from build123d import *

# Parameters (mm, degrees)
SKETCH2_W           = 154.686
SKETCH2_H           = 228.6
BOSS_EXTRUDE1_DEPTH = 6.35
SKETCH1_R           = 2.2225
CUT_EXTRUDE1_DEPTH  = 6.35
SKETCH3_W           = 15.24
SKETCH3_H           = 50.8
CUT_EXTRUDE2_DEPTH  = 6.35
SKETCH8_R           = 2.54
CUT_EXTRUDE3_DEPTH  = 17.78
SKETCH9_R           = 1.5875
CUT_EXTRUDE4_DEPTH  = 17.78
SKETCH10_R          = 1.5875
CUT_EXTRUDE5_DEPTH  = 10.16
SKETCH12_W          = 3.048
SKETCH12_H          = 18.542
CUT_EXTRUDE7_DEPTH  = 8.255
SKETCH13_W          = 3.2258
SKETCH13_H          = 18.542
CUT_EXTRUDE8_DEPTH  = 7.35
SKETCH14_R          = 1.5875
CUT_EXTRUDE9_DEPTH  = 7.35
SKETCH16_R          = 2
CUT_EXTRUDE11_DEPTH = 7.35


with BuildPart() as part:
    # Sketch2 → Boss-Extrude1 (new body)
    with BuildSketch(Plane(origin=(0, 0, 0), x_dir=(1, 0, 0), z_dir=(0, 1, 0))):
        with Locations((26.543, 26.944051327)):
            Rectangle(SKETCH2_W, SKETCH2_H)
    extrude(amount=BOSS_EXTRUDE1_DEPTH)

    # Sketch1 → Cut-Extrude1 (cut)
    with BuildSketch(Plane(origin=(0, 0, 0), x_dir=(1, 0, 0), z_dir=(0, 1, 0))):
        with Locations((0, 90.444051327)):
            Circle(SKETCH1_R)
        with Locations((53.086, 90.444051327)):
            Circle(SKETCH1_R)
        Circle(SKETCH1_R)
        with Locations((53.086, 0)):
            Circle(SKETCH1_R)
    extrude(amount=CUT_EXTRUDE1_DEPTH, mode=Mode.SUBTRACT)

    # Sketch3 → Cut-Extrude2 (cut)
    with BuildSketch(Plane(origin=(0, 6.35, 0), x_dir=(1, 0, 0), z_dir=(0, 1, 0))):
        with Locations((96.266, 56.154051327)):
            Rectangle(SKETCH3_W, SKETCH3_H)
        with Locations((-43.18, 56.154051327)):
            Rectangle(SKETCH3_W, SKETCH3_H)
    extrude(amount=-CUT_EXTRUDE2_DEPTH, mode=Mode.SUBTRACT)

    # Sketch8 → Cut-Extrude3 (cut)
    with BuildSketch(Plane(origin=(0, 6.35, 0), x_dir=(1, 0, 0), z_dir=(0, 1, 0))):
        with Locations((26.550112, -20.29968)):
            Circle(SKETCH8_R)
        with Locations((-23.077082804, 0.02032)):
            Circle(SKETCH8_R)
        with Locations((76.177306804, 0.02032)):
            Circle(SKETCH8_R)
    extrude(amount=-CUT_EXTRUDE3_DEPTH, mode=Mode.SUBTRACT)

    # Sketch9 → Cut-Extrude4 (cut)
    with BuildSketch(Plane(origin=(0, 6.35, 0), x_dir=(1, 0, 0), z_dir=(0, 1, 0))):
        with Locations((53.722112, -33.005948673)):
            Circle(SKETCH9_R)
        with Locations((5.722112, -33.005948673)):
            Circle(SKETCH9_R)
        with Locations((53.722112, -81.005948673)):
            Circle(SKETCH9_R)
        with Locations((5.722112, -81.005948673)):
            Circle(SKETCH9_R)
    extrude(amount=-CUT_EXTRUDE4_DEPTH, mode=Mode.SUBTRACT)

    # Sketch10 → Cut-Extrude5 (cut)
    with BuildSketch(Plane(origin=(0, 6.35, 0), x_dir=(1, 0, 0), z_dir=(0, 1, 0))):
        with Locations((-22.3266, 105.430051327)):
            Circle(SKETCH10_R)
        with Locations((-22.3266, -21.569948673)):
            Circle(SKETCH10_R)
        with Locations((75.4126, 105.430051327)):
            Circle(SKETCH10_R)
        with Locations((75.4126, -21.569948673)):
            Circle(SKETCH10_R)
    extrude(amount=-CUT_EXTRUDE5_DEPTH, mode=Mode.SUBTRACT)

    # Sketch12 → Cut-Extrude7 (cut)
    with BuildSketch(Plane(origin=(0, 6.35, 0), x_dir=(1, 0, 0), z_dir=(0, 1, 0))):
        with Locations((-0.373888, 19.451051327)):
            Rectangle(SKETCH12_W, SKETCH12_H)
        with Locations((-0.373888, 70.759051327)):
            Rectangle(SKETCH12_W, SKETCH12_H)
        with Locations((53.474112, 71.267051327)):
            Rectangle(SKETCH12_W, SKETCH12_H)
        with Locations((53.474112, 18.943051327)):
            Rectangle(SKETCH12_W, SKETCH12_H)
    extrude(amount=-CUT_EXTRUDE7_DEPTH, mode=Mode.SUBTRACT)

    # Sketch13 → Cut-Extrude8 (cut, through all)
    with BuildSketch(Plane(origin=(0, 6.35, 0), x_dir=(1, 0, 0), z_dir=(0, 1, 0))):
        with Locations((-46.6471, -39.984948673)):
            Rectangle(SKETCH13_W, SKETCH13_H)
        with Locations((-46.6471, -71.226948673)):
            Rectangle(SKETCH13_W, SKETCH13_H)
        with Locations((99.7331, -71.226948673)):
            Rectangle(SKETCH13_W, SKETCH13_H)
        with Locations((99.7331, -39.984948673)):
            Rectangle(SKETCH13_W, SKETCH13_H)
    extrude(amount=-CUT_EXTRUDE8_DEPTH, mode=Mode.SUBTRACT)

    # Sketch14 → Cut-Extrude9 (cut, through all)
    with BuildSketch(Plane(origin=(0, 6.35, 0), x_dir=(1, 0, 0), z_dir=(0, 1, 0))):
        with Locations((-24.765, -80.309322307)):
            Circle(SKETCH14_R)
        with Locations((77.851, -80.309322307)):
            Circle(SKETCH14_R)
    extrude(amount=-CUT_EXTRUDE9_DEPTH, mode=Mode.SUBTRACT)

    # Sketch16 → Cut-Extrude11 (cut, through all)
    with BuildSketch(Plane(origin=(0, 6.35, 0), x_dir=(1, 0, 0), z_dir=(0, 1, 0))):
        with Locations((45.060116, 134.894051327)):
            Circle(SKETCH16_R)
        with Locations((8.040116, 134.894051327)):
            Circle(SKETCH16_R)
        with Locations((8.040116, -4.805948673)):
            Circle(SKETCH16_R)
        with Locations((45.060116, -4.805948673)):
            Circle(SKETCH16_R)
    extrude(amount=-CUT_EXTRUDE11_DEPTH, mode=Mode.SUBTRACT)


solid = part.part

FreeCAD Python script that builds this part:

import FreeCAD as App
import Part
import Sketcher
from FreeCAD import Vector
Q = App.Units.Quantity


def add_polygon(sketch, points):
    """Adds a closed chain of lines whose ends are joined by coincident constraints."""
    first, n = sketch.GeometryCount, len(points)
    for a, b in zip(points, points[1:] + points[:1]):
        sketch.addGeometry(Part.LineSegment(App.Vector(*a, 0), App.Vector(*b, 0)), False)
    for i in range(n):
        sketch.addConstraint(Sketcher.Constraint("Coincident", first + i, 2, first + (i + 1) % n, 1))

doc = App.newDocument("Part")
body = doc.addObject("PartDesign::Body", "Body")

sketch1 = body.newObject("Sketcher::SketchObject", "Sketch")
sketch1.AttachmentSupport = (doc.getObject("XZ_Plane"), [""])
sketch1.MapMode = "FlatFace"
add_polygon(sketch1, [(-51, -141), (-51, 87), (104, 87), (104, -141)])
sketch1.addConstraint(Sketcher.Constraint("Vertical", 0))
sketch1.addConstraint(Sketcher.Constraint("Horizontal", 1))
sketch1.addConstraint(Sketcher.Constraint("Vertical", 2))
sketch1.addConstraint(Sketcher.Constraint("Horizontal", 3))
sketch1.addConstraint(Sketcher.Constraint("DistanceY", 0, 1, 0, 2, Q("9 in")))
sketch1.addConstraint(Sketcher.Constraint("DistanceX", 0, 2, -1, 1, Q("2 in")))
sketch1.addConstraint(Sketcher.Constraint("DistanceX", 1, 1, 1, 2, Q("6.09 in")))
sketch1.addConstraint(Sketcher.Constraint("DistanceY", -1, 1, 0, 2, 87.355949))
pad1 = body.newObject("PartDesign::Pad", "Pad")
pad1.Profile = sketch1
pad1.Length = Q("0.25 in")
pad1.Reversed = True

sketch2 = body.newObject("Sketcher::SketchObject", "Sketch001")
sketch2.AttachmentSupport = (doc.getObject("XZ_Plane"), [""])
sketch2.MapMode = "FlatFace"
sketch2.addGeometry(Part.Circle(Vector(0, -90.4, 0), Vector(0, 0, 1), 2.2), False)
sketch2.addGeometry(Part.Circle(Vector(53.1, -90.4, 0), Vector(0, 0, 1), 2.2), False)
sketch2.addGeometry(Part.Circle(Vector(0, 0, 0), Vector(0, 0, 1), 2.2), False)
sketch2.addGeometry(Part.Circle(Vector(53.1, 0, 0), Vector(0, 0, 1), 2.2), False)
sketch2.addConstraint(Sketcher.Constraint("Coincident", 2, 3, -1, 1))
sketch2.addConstraint(Sketcher.Constraint("Equal", 0, 1))
sketch2.addConstraint(Sketcher.Constraint("Equal", 1, 2))
sketch2.addConstraint(Sketcher.Constraint("Equal", 2, 3))
sketch2.addConstraint(Sketcher.Constraint("PointOnObject", 0, 3, -2))
sketch2.addConstraint(Sketcher.Constraint("PointOnObject", 3, 3, -1))
sketch2.addConstraint(Sketcher.Constraint("Horizontal", 0, 3, 1, 3))
sketch2.addConstraint(Sketcher.Constraint("Vertical", 1, 3, 3, 3))
sketch2.addConstraint(Sketcher.Constraint("Diameter", 0, Q("0.175 in")))
sketch2.addConstraint(Sketcher.Constraint("DistanceX", -1, 1, 1, 3, Q("2.09 in")))
sketch2.addConstraint(Sketcher.Constraint("DistanceY", 0, 3, -1, 1, 90.444051))
pocket1 = body.newObject("PartDesign::Pocket", "Pocket")
pocket1.Profile = sketch2
pocket1.Length = Q("0.25 in")

sketch3 = body.newObject("Sketcher::SketchObject", "Sketch002")
sketch3.AttachmentSupport = (doc.getObject("XZ_Plane"), [""])
sketch3.MapMode = "FlatFace"
sketch3.AttachmentOffset = App.Placement(Vector(0, 0, -0.25 * 25.4), App.Rotation())
add_polygon(sketch3, [(89, -82), (89, -31), (104, -31), (104, -82)])
add_polygon(sketch3, [(-51, -82), (-51, -31), (-36, -31), (-36, -82)])
sketch3.addConstraint(Sketcher.Constraint("Vertical", 0))
sketch3.addConstraint(Sketcher.Constraint("Horizontal", 1))
sketch3.addConstraint(Sketcher.Constraint("Vertical", 2))
sketch3.addConstraint(Sketcher.Constraint("Horizontal", 3))
sketch3.addConstraint(Sketcher.Constraint("Vertical", 4))
sketch3.addConstraint(Sketcher.Constraint("Horizontal", 5))
sketch3.addConstraint(Sketcher.Constraint("Vertical", 6))
sketch3.addConstraint(Sketcher.Constraint("Horizontal", 7))
sketch3.addConstraint(Sketcher.Constraint("Horizontal", 1, 2, 4, 2))
sketch3.addConstraint(Sketcher.Constraint("Horizontal", 3, 2, 6, 2))
sketch3.addConstraint(Sketcher.Constraint("Equal", 3, 5))
sketch3.addConstraint(Sketcher.Constraint("DistanceY", 0, 1, 0, 2, Q("2 in")))
sketch3.addConstraint(Sketcher.Constraint("DistanceX", 1, 1, 1, 2, Q("0.6 in")))
sketch3.addConstraint(Sketcher.Constraint("DistanceX", 4, 2, -1, 1, Q("2 in")))
sketch3.addConstraint(Sketcher.Constraint("DistanceX", -1, 1, 0, 2, Q("3.49 in")))
sketch3.addConstraint(Sketcher.Constraint("DistanceY", 0, 2, -1, 1, 30.754051))
pocket2 = body.newObject("PartDesign::Pocket", "Pocket001")
pocket2.Profile = sketch3
pocket2.Length = Q("0.25 in")
pocket2.Reversed = True

sketch4 = body.newObject("Sketcher::SketchObject", "Sketch003")
sketch4.AttachmentSupport = (doc.getObject("XZ_Plane"), [""])
sketch4.MapMode = "FlatFace"
sketch4.AttachmentOffset = App.Placement(Vector(0, 0, -0.25 * 25.4), App.Rotation())
sketch4.addGeometry(Part.Circle(Vector(26.6, 20.3, 0), Vector(0, 0, 1), 2.5), False)
sketch4.addGeometry(Part.Circle(Vector(-23.1, 0, 0), Vector(0, 0, 1), 2.5), False)
sketch4.addGeometry(Part.Circle(Vector(76.2, 0, 0), Vector(0, 0, 1), 2.5), False)
sketch4.addConstraint(Sketcher.Constraint("Equal", 0, 1))
sketch4.addConstraint(Sketcher.Constraint("Equal", 1, 2))
sketch4.addConstraint(Sketcher.Constraint("Horizontal", 1, 3, 2, 3))
sketch4.addConstraint(Sketcher.Constraint("Diameter", 0, Q("0.2 in")))
sketch4.addConstraint(Sketcher.Constraint("DistanceY", 1, 3, 0, 3, Q("0.8 in")))
sketch4.addConstraint(Sketcher.Constraint("DistanceY", -1, 1, 0, 3, Q("0.7992 in")))
sketch4.addConstraint(Sketcher.Constraint("DistanceX", -1, 1, 0, 3, 26.550112))
sketch4.addConstraint(Sketcher.Constraint("DistanceX", 1, 3, 2, 3, 99.25439))
sketch4.addConstraint(Sketcher.Constraint("DistanceX", 1, 3, -1, 1, 23.077083))
pocket3 = body.newObject("PartDesign::Pocket", "Pocket002")
pocket3.Profile = sketch4
pocket3.Length = Q("0.7 in")
pocket3.Reversed = True

sketch5 = body.newObject("Sketcher::SketchObject", "Sketch004")
sketch5.AttachmentSupport = (doc.getObject("XZ_Plane"), [""])
sketch5.MapMode = "FlatFace"
sketch5.AttachmentOffset = App.Placement(Vector(0, 0, -0.25 * 25.4), App.Rotation())
sketch5.addGeometry(Part.Circle(Vector(53.7, 33, 0), Vector(0, 0, 1), 1.6), False)
sketch5.addGeometry(Part.Circle(Vector(5.7, 33, 0), Vector(0, 0, 1), 1.6), False)
sketch5.addGeometry(Part.Circle(Vector(53.7, 81, 0), Vector(0, 0, 1), 1.6), False)
sketch5.addGeometry(Part.Circle(Vector(5.7, 81, 0), Vector(0, 0, 1), 1.6), False)
sketch5.addConstraint(Sketcher.Constraint("Equal", 0, 1))
sketch5.addConstraint(Sketcher.Constraint("Equal", 1, 2))
sketch5.addConstraint(Sketcher.Constraint("Equal", 2, 3))
sketch5.addConstraint(Sketcher.Constraint("Horizontal", 0, 3, 1, 3))
sketch5.addConstraint(Sketcher.Constraint("Horizontal", 2, 3, 3, 3))
sketch5.addConstraint(Sketcher.Constraint("Vertical", 0, 3, 2, 3))
sketch5.addConstraint(Sketcher.Constraint("Vertical", 1, 3, 3, 3))
sketch5.addConstraint(Sketcher.Constraint("Diameter", 0, Q("0.125 in")))
sketch5.addConstraint(Sketcher.Constraint("DistanceX", 1, 3, 0, 3, 48.0))
sketch5.addConstraint(Sketcher.Constraint("DistanceY", 0, 3, 2, 3, 48.0))
sketch5.addConstraint(Sketcher.Constraint("DistanceY", -1, 1, 0, 3, 33.005949))
sketch5.addConstraint(Sketcher.Constraint("DistanceX", -1, 1, 0, 3, 53.722112))
pocket4 = body.newObject("PartDesign::Pocket", "Pocket003")
pocket4.Profile = sketch5
pocket4.Length = Q("0.7 in")
pocket4.Reversed = True

sketch6 = body.newObject("Sketcher::SketchObject", "Sketch005")
sketch6.AttachmentSupport = (doc.getObject("XZ_Plane"), [""])
sketch6.MapMode = "FlatFace"
sketch6.AttachmentOffset = App.Placement(Vector(0, 0, -0.25 * 25.4), App.Rotation())
sketch6.addGeometry(Part.Circle(Vector(-22.3, -105.4, 0), Vector(0, 0, 1), 1.6), False)
sketch6.addGeometry(Part.Circle(Vector(-22.3, 21.6, 0), Vector(0, 0, 1), 1.6), False)
sketch6.addGeometry(Part.Circle(Vector(75.4, -105.4, 0), Vector(0, 0, 1), 1.6), False)
sketch6.addGeometry(Part.Circle(Vector(75.4, 21.6, 0), Vector(0, 0, 1), 1.6), False)
sketch6.addConstraint(Sketcher.Constraint("Equal", 0, 1))
sketch6.addConstraint(Sketcher.Constraint("Equal", 1, 2))
sketch6.addConstraint(Sketcher.Constraint("Equal", 2, 3))
sketch6.addConstraint(Sketcher.Constraint("Horizontal", 0, 3, 2, 3))
sketch6.addConstraint(Sketcher.Constraint("Horizontal", 1, 3, 3, 3))
sketch6.addConstraint(Sketcher.Constraint("Vertical", 0, 3, 1, 3))
sketch6.addConstraint(Sketcher.Constraint("Vertical", 2, 3, 3, 3))
sketch6.addConstraint(Sketcher.Constraint("Diameter", 0, Q("0.125 in")))
sketch6.addConstraint(Sketcher.Constraint("DistanceY", 0, 3, 1, 3, Q("5 in")))
sketch6.addConstraint(Sketcher.Constraint("DistanceX", 0, 3, -1, 1, Q("0.879 in")))
sketch6.addConstraint(Sketcher.Constraint("DistanceX", -1, 1, 2, 3, Q("2.969 in")))
sketch6.addConstraint(Sketcher.Constraint("DistanceY", 0, 3, -1, 1, 105.430051))
pocket5 = body.newObject("PartDesign::Pocket", "Pocket004")
pocket5.Profile = sketch6
pocket5.Length = Q("0.4 in")
pocket5.Reversed = True

sketch7 = body.newObject("Sketcher::SketchObject", "Sketch006")
sketch7.AttachmentSupport = (doc.getObject("XZ_Plane"), [""])
sketch7.MapMode = "FlatFace"
sketch7.AttachmentOffset = App.Placement(Vector(0, 0, -0.25 * 25.4), App.Rotation())
add_polygon(sketch7, [(-1.9, -28.7), (-1.9, -10.2), (1.2, -10.2), (1.2, -28.7)])
add_polygon(sketch7, [(-1.9, -80), (-1.9, -61.5), (1.2, -61.5), (1.2, -80)])
add_polygon(sketch7, [(52, -80.5), (52, -62), (55, -62), (55, -80.5)])
add_polygon(sketch7, [(52, -28.2), (52, -9.7), (55, -9.7), (55, -28.2)])
sketch7.addConstraint(Sketcher.Constraint("Vertical", 0))
sketch7.addConstraint(Sketcher.Constraint("Horizontal", 1))
sketch7.addConstraint(Sketcher.Constraint("Vertical", 2))
sketch7.addConstraint(Sketcher.Constraint("Horizontal", 3))
sketch7.addConstraint(Sketcher.Constraint("Vertical", 4))
sketch7.addConstraint(Sketcher.Constraint("Horizontal", 5))
sketch7.addConstraint(Sketcher.Constraint("Vertical", 6))
sketch7.addConstraint(Sketcher.Constraint("Horizontal", 7))
sketch7.addConstraint(Sketcher.Constraint("Vertical", 8))
sketch7.addConstraint(Sketcher.Constraint("Horizontal", 9))
sketch7.addConstraint(Sketcher.Constraint("Vertical", 10))
sketch7.addConstraint(Sketcher.Constraint("Horizontal", 11))
sketch7.addConstraint(Sketcher.Constraint("Vertical", 12))
sketch7.addConstraint(Sketcher.Constraint("Horizontal", 13))
sketch7.addConstraint(Sketcher.Constraint("Vertical", 14))
sketch7.addConstraint(Sketcher.Constraint("Horizontal", 15))
sketch7.addConstraint(Sketcher.Constraint("Vertical", 3, 2, 4, 2))
sketch7.addConstraint(Sketcher.Constraint("Vertical", 2, 2, 5, 2))
sketch7.addConstraint(Sketcher.Constraint("Vertical", 11, 2, 12, 2))
sketch7.addConstraint(Sketcher.Constraint("Vertical", 10, 2, 13, 2))
sketch7.addConstraint(Sketcher.Constraint("Equal", 7, 9))
sketch7.addConstraint(Sketcher.Constraint("Equal", 2, 4))
sketch7.addConstraint(Sketcher.Constraint("Equal", 6, 8))
sketch7.addConstraint(Sketcher.Constraint("Equal", 10, 12))
sketch7.addConstraint(Sketcher.Constraint("DistanceX", 5, 2, 8, 2, Q("2 in")))
sketch7.addConstraint(Sketcher.Constraint("DistanceX", 1, 1, 1, 2, Q("0.12 in")))
sketch7.addConstraint(Sketcher.Constraint("DistanceY", 0, 1, 0, 2, Q("0.73 in")))
sketch7.addConstraint(Sketcher.Constraint("DistanceY", 4, 2, 3, 2, Q("1.29 in")))
sketch7.addConstraint(Sketcher.Constraint("DistanceY", 8, 2, 5, 2, Q("0.02 in")))
sketch7.addConstraint(Sketcher.Constraint("DistanceY", 1, 2, 12, 2, Q("0.02 in")))
sketch7.addConstraint(Sketcher.Constraint("DistanceY", 0, 2, -1, 1, 10.180051))
sketch7.addConstraint(Sketcher.Constraint("DistanceX", -1, 1, 8, 2, 51.950112))
pocket6 = body.newObject("PartDesign::Pocket", "Pocket005")
pocket6.Profile = sketch7
pocket6.Length = Q("0.325 in")
pocket6.Reversed = True

sketch8 = body.newObject("Sketcher::SketchObject", "Sketch007")
sketch8.AttachmentSupport = (doc.getObject("XZ_Plane"), [""])
sketch8.MapMode = "FlatFace"
sketch8.AttachmentOffset = App.Placement(Vector(0, 0, -0.25 * 25.4), App.Rotation())
add_polygon(sketch8, [(-48.3, 30.7), (-48.3, 49.3), (-45, 49.3), (-45, 30.7)])
add_polygon(sketch8, [(-48.3, 62), (-48.3, 80.5), (-45, 80.5), (-45, 62)])
add_polygon(sketch8, [(98.1, 62), (98.1, 80.5), (101.3, 80.5), (101.3, 62)])
add_polygon(sketch8, [(98.1, 30.7), (98.1, 49.3), (101.3, 49.3), (101.3, 30.7)])
sketch8.addConstraint(Sketcher.Constraint("Vertical", 0))
sketch8.addConstraint(Sketcher.Constraint("Horizontal", 1))
sketch8.addConstraint(Sketcher.Constraint("Vertical", 2))
sketch8.addConstraint(Sketcher.Constraint("Horizontal", 3))
sketch8.addConstraint(Sketcher.Constraint("Vertical", 4))
sketch8.addConstraint(Sketcher.Constraint("Horizontal", 5))
sketch8.addConstraint(Sketcher.Constraint("Vertical", 6))
sketch8.addConstraint(Sketcher.Constraint("Horizontal", 7))
sketch8.addConstraint(Sketcher.Constraint("Vertical", 8))
sketch8.addConstraint(Sketcher.Constraint("Horizontal", 9))
sketch8.addConstraint(Sketcher.Constraint("Vertical", 10))
sketch8.addConstraint(Sketcher.Constraint("Horizontal", 11))
sketch8.addConstraint(Sketcher.Constraint("Vertical", 12))
sketch8.addConstraint(Sketcher.Constraint("Horizontal", 13))
sketch8.addConstraint(Sketcher.Constraint("Vertical", 14))
sketch8.addConstraint(Sketcher.Constraint("Horizontal", 15))
sketch8.addConstraint(Sketcher.Constraint("Horizontal", 5, 2, 8, 2))
sketch8.addConstraint(Sketcher.Constraint("Horizontal", 7, 2, 10, 2))
sketch8.addConstraint(Sketcher.Constraint("Horizontal", 1, 2, 12, 2))
sketch8.addConstraint(Sketcher.Constraint("Horizontal", 3, 2, 14, 2))
sketch8.addConstraint(Sketcher.Constraint("Vertical", 3, 2, 4, 2))
sketch8.addConstraint(Sketcher.Constraint("Vertical", 2, 2, 5, 2))
sketch8.addConstraint(Sketcher.Constraint("Vertical", 11, 2, 12, 2))
sketch8.addConstraint(Sketcher.Constraint("Vertical", 10, 2, 13, 2))
sketch8.addConstraint(Sketcher.Constraint("Equal", 7, 9))
sketch8.addConstraint(Sketcher.Constraint("Equal", 2, 4))
sketch8.addConstraint(Sketcher.Constraint("DistanceY", 0, 1, 0, 2, Q("0.73 in")))
sketch8.addConstraint(Sketcher.Constraint("DistanceX", 0, 2, -1, 1, Q("1.9 in")))
sketch8.addConstraint(Sketcher.Constraint("DistanceY", 1, 2, 6, 2, Q("0.5 in")))
sketch8.addConstraint(Sketcher.Constraint("DistanceX", 1, 1, 1, 2, Q("0.127 in")))
sketch8.addConstraint(Sketcher.Constraint("DistanceX", -1, 1, 9, 2, Q("3.99 in")))
sketch8.addConstraint(Sketcher.Constraint("DistanceY", -1, 1, 0, 2, 49.255949))
pocket7 = body.newObject("PartDesign::Pocket", "Pocket006")
pocket7.Profile = sketch8
pocket7.Type = "ThroughAll"
pocket7.Reversed = True

sketch9 = body.newObject("Sketcher::SketchObject", "Sketch008")
sketch9.AttachmentSupport = (doc.getObject("XZ_Plane"), [""])
sketch9.MapMode = "FlatFace"
sketch9.AttachmentOffset = App.Placement(Vector(0, 0, -0.25 * 25.4), App.Rotation())
sketch9.addGeometry(Part.Circle(Vector(-24.8, 80.3, 0), Vector(0, 0, 1), 1.6), False)
sketch9.addGeometry(Part.Circle(Vector(77.9, 80.3, 0), Vector(0, 0, 1), 1.6), False)
sketch9.addConstraint(Sketcher.Constraint("Equal", 0, 1))
sketch9.addConstraint(Sketcher.Constraint("Horizontal", 0, 3, 1, 3))
sketch9.addConstraint(Sketcher.Constraint("Diameter", 0, Q("0.125 in")))
sketch9.addConstraint(Sketcher.Constraint("DistanceX", 0, 3, 1, 3, Q("4.04 in")))
sketch9.addConstraint(Sketcher.Constraint("DistanceX", 0, 3, -1, 1, Q("0.975 in")))
sketch9.addConstraint(Sketcher.Constraint("DistanceY", -1, 1, 0, 3, 80.309322))
pocket8 = body.newObject("PartDesign::Pocket", "Pocket007")
pocket8.Profile = sketch9
pocket8.Type = "ThroughAll"
pocket8.Reversed = True

sketch10 = body.newObject("Sketcher::SketchObject", "Sketch009")
sketch10.AttachmentSupport = (doc.getObject("XZ_Plane"), [""])
sketch10.MapMode = "FlatFace"
sketch10.AttachmentOffset = App.Placement(Vector(0, 0, -0.25 * 25.4), App.Rotation())
sketch10.addGeometry(Part.Circle(Vector(45.1, -134.9, 0), Vector(0, 0, 1), 2), False)
sketch10.addGeometry(Part.Circle(Vector(8, -134.9, 0), Vector(0, 0, 1), 2), False)
sketch10.addGeometry(Part.Circle(Vector(8, 4.8, 0), Vector(0, 0, 1), 2), False)
sketch10.addGeometry(Part.Circle(Vector(45.1, 4.8, 0), Vector(0, 0, 1), 2), False)
sketch10.addConstraint(Sketcher.Constraint("Equal", 0, 1))
sketch10.addConstraint(Sketcher.Constraint("Equal", 1, 2))
sketch10.addConstraint(Sketcher.Constraint("Equal", 2, 3))
sketch10.addConstraint(Sketcher.Constraint("Horizontal", 0, 3, 1, 3))
sketch10.addConstraint(Sketcher.Constraint("Horizontal", 2, 3, 3, 3))
sketch10.addConstraint(Sketcher.Constraint("Vertical", 1, 3, 2, 3))
sketch10.addConstraint(Sketcher.Constraint("Vertical", 0, 3, 3, 3))
sketch10.addConstraint(Sketcher.Constraint("DistanceY", 1, 3, 2, 3, Q("5.5 in")))
sketch10.addConstraint(Sketcher.Constraint("Diameter", 0, 4.0))
sketch10.addConstraint(Sketcher.Constraint("DistanceX", 1, 3, 0, 3, 37.02))
sketch10.addConstraint(Sketcher.Constraint("DistanceY", 0, 3, -1, 1, 134.894051))
sketch10.addConstraint(Sketcher.Constraint("DistanceX", -1, 1, 0, 3, 45.060116))
pocket9 = body.newObject("PartDesign::Pocket", "Pocket008")
pocket9.Profile = sketch10
pocket9.Type = "ThroughAll"
pocket9.Reversed = True

doc.recompute()
